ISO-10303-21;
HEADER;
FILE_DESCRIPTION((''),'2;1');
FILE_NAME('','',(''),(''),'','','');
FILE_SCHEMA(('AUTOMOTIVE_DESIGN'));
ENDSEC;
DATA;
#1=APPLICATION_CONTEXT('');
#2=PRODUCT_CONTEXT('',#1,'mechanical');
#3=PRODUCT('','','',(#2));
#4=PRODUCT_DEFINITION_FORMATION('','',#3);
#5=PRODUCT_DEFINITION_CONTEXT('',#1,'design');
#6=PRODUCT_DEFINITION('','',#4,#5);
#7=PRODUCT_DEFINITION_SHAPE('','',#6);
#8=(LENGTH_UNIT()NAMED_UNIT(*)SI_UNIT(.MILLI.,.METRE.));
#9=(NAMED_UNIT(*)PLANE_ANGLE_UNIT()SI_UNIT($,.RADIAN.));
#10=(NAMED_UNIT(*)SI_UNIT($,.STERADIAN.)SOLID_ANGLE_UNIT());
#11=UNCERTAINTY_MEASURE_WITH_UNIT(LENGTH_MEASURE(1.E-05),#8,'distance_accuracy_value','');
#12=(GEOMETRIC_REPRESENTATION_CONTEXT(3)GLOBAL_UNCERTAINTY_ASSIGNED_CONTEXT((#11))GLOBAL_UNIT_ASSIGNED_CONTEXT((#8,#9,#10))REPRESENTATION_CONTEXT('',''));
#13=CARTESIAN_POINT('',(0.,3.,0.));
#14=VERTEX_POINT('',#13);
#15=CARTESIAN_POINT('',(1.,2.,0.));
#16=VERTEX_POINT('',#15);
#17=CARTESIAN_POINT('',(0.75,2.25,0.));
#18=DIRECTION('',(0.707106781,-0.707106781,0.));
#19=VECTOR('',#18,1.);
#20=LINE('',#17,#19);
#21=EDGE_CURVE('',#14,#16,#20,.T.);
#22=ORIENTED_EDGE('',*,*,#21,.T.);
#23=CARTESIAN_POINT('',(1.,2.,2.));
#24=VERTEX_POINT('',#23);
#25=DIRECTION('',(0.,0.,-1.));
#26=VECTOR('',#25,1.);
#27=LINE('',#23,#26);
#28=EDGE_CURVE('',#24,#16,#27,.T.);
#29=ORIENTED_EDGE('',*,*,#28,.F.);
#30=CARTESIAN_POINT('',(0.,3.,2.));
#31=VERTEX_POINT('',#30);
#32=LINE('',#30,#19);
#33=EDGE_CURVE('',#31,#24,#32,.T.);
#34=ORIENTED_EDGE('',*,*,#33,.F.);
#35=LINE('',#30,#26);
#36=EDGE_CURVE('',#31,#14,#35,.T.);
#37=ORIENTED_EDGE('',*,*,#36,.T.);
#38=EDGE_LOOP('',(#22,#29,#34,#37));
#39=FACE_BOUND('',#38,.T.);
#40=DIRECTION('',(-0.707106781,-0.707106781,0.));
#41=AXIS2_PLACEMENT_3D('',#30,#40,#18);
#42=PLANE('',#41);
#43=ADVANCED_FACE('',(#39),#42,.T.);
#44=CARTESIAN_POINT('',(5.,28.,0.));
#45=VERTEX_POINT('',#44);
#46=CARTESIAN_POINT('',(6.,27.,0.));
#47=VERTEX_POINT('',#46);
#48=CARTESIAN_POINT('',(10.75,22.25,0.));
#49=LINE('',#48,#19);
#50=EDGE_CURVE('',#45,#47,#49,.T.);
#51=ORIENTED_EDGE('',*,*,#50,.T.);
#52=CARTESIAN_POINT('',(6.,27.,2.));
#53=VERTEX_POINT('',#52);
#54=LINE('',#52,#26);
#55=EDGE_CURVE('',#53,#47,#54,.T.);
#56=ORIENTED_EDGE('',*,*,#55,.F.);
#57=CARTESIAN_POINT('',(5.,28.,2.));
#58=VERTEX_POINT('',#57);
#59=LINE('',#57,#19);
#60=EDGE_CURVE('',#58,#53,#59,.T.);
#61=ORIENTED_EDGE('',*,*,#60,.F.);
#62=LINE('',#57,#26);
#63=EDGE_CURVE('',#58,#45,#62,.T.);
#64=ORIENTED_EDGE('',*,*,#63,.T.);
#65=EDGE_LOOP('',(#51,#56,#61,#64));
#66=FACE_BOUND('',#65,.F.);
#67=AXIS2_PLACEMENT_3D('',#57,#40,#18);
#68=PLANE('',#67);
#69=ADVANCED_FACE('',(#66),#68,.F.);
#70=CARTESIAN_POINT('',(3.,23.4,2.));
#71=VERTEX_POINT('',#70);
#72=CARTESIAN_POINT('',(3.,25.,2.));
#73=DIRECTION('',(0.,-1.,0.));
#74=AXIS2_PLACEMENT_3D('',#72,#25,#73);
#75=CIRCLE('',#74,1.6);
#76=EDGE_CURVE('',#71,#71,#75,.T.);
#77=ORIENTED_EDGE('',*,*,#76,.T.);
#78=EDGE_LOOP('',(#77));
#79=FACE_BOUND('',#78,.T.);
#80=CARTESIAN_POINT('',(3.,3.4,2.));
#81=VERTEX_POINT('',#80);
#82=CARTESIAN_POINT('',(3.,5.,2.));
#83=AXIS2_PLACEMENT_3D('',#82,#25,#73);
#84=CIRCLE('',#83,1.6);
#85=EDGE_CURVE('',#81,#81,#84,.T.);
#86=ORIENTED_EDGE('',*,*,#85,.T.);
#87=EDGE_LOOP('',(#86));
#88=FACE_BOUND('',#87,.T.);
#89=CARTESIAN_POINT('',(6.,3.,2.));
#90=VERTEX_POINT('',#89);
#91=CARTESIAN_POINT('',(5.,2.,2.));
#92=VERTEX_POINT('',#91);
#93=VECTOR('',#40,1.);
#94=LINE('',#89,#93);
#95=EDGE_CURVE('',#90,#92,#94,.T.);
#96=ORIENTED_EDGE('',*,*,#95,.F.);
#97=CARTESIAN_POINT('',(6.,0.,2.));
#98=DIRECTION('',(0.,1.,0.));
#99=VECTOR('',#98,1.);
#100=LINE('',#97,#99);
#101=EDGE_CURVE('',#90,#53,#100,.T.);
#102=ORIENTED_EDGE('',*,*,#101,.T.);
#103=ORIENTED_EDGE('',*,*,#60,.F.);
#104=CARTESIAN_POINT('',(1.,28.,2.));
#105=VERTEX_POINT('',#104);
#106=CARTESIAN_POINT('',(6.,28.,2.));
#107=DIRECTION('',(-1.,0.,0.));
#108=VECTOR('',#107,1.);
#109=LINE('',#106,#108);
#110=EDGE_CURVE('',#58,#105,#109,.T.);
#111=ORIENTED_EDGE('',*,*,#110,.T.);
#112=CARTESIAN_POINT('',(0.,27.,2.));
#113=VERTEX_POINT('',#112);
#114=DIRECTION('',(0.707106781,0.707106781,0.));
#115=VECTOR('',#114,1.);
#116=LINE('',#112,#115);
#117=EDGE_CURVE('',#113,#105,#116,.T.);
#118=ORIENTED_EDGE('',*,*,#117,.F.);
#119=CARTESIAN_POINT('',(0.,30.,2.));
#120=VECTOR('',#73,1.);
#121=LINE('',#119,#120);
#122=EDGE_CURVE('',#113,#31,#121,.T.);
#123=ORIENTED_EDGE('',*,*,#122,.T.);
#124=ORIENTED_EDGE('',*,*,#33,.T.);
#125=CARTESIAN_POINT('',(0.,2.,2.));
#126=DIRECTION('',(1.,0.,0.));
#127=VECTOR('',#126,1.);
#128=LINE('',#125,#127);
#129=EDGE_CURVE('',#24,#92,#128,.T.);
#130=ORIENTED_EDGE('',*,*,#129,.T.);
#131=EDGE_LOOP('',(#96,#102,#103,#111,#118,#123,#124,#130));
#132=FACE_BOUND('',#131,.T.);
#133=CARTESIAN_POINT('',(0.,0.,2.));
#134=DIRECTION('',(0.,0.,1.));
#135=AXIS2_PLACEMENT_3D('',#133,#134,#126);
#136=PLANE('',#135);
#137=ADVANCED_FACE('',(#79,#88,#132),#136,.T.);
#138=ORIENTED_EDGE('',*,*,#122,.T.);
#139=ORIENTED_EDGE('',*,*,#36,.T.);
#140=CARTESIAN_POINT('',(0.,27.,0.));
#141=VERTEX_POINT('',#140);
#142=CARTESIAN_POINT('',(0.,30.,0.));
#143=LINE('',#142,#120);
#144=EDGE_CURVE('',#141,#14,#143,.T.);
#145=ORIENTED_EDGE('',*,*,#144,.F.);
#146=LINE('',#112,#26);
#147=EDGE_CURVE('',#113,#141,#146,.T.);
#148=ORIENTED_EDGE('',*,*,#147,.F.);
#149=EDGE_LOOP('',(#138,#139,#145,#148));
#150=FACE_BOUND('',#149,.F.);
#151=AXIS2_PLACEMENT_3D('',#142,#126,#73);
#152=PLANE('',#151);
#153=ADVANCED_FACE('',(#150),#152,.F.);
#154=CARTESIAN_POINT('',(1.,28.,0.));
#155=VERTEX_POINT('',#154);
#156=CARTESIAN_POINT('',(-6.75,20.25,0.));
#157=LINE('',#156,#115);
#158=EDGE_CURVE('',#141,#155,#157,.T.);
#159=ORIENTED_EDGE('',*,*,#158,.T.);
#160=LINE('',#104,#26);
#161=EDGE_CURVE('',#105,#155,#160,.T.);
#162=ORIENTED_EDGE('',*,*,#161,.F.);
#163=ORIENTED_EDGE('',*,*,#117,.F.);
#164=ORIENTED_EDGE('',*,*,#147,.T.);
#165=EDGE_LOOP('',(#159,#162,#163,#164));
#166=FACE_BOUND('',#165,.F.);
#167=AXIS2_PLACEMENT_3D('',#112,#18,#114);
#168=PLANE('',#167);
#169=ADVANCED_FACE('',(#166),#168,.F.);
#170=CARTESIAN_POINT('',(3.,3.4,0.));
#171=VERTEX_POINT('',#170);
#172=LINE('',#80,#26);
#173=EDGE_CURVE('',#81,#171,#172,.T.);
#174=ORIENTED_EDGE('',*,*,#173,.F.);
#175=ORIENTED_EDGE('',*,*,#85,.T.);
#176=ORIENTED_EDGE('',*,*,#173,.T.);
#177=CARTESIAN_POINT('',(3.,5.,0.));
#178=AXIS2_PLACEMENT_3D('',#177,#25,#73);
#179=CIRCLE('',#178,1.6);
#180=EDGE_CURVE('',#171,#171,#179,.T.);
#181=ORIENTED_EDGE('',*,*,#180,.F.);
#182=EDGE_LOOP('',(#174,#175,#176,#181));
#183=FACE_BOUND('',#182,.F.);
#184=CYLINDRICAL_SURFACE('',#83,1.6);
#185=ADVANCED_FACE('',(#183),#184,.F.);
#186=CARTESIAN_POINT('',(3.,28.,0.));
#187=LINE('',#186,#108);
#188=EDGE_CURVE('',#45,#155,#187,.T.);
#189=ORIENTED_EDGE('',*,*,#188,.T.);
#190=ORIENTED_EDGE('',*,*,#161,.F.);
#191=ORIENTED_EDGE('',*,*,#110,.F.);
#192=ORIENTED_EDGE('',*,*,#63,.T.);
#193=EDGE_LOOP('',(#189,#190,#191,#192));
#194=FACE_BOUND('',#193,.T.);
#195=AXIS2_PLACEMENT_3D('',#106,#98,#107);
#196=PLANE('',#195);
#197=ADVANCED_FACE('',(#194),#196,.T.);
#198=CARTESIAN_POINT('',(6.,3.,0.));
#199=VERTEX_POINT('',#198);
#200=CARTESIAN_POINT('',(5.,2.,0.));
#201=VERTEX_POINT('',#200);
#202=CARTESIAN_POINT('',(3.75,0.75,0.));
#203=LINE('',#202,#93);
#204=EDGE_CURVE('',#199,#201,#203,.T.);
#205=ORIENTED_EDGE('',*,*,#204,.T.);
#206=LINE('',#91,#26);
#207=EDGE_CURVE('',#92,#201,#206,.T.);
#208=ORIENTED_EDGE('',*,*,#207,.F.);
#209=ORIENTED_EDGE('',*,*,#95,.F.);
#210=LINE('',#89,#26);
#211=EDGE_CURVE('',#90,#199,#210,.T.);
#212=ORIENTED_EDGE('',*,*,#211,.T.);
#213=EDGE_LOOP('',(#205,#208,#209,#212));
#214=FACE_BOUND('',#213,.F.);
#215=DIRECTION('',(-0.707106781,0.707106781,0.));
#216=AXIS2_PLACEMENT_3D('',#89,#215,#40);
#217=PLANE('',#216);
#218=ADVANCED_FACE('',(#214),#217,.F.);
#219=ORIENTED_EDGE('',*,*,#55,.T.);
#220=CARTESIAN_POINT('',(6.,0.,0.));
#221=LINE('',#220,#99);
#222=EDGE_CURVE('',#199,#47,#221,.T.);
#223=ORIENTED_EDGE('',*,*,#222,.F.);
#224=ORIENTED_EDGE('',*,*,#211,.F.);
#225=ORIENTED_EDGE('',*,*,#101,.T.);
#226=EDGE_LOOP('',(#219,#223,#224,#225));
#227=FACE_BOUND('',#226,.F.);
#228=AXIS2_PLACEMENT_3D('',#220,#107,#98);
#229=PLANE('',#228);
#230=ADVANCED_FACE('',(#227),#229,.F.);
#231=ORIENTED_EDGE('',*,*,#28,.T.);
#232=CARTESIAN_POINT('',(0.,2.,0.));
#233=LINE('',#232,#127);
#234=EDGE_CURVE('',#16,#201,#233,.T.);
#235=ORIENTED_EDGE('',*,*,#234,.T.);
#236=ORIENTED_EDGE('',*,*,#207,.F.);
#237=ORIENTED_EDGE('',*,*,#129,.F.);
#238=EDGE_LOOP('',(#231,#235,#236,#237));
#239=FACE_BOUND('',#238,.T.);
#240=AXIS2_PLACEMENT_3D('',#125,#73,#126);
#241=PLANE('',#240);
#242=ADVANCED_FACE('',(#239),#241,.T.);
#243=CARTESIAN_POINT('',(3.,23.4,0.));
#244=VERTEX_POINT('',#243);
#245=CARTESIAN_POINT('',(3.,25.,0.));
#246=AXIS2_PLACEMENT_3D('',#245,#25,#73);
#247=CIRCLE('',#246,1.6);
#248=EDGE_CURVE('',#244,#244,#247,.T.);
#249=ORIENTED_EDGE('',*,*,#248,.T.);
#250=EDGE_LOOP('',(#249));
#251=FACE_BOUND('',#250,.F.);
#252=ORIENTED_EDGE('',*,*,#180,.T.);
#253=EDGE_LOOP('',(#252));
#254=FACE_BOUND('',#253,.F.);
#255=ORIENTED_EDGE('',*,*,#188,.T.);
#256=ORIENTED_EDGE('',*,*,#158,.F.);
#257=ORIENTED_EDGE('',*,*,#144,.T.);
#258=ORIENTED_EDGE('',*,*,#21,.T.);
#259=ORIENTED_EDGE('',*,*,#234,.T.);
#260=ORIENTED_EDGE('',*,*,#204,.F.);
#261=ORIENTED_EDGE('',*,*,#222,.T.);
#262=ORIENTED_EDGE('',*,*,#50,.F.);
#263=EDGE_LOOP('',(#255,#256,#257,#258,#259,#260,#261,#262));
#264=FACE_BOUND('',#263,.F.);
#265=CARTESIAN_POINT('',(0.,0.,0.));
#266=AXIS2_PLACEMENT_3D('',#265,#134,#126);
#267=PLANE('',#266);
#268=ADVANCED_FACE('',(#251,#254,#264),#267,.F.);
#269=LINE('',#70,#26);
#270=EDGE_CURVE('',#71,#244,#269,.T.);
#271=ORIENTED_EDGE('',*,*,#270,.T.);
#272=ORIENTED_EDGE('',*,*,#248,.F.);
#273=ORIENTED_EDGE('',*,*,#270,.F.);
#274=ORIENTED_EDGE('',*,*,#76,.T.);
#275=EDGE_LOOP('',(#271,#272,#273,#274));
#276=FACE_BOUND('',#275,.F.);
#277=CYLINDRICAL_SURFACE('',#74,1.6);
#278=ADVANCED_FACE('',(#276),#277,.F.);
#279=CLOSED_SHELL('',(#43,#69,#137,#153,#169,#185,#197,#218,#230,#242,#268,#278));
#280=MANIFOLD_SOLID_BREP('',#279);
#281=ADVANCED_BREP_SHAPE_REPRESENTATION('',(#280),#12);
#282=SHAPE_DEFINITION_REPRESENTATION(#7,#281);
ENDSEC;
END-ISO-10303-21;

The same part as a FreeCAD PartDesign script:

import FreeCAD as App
import Part
import Sketcher

doc = App.newDocument("Part")
body = doc.addObject("PartDesign::Body", "Body")

# Sketch on XY plane
sketch1 = body.newObject("Sketcher::SketchObject", "Sketch")
sketch1.AttachmentSupport = (doc.getObject("XY_Plane"), [""])
sketch1.MapMode = "FlatFace"
sketch1.addGeometry([
    Part.LineSegment(App.Vector(0, 30, 0), App.Vector(0, 0, 0)),
    Part.LineSegment(App.Vector(0, 0, 0), App.Vector(6, 0, 0)),
    Part.LineSegment(App.Vector(6, 0, 0), App.Vector(6, 30, 0)),
    Part.LineSegment(App.Vector(6, 30, 0), App.Vector(0, 30, 0)),
], False)
sketch1.addConstraint([
    Sketcher.Constraint("Coincident", 0, 2, 1, 1),
    Sketcher.Constraint("Coincident", 1, 2, 2, 1),
    Sketcher.Constraint("Coincident", 2, 2, 3, 1),
    Sketcher.Constraint("Coincident", 3, 2, 0, 1),
    Sketcher.Constraint("Vertical", 0),
    Sketcher.Constraint("Horizontal", 1),
    Sketcher.Constraint("Vertical", 2),
    Sketcher.Constraint("Horizontal", 3),
    Sketcher.Constraint("Coincident", 0, 2, -1, 1),
    Sketcher.Constraint("DistanceX", 1, 1, 1, 2, 6.0),
    Sketcher.Constraint("DistanceY", 0, 2, 0, 1, 30.0),
])
pad1 = body.newObject("PartDesign::Pad", "Pad")
pad1.Profile = sketch1
pad1.Length = 2

# Sketch on XY plane
sketch2 = body.newObject("Sketcher::SketchObject", "Sketch001")
sketch2.AttachmentSupport = (doc.getObject("XY_Plane"), [""])
sketch2.MapMode = "FlatFace"
sketch2.AttachmentOffset = App.Placement(App.Vector(0, 0, 2), App.Rotation())
sketch2.addGeometry([
    Part.Circle(App.Vector(3, 25, 0), App.Vector(0, 0, 1), 1.6),
    Part.Circle(App.Vector(3, 5, 0), App.Vector(0, 0, 1), 1.6),
], False)
sketch2.addConstraint([
    Sketcher.Constraint("Equal", 0, 1),
    Sketcher.Constraint("Vertical", 0, 3, 1, 3),
    Sketcher.Constraint("Diameter", 0, 3.2),
    Sketcher.Constraint("DistanceX", -1, 1, 0, 3, 3.0),
    Sketcher.Constraint("DistanceY", -1, 1, 0, 3, 25.0),
    Sketcher.Constraint("DistanceY", -1, 1, 1, 3, 5.0),
])
doc.recompute()
hole = body.newObject("PartDesign::Hole", "Hole")
hole.Profile = sketch2
hole.ThreadType = "None"
hole.Diameter = 3.2
hole.DepthType = "ThroughAll"

# Sketch on XY plane
sketch3 = body.newObject("Sketcher::SketchObject", "Sketch002")
sketch3.AttachmentSupport = (doc.getObject("XY_Plane"), [""])
sketch3.MapMode = "FlatFace"
sketch3.AttachmentOffset = App.Placement(App.Vector(0, 0, 2), App.Rotation())
sketch3.addGeometry([
    Part.LineSegment(App.Vector(6, 28, 0), App.Vector(6, 30, 0)),  # 0
    Part.LineSegment(App.Vector(6, 30, 0), App.Vector(0, 30, 0)),  # 1
    Part.LineSegment(App.Vector(0, 30, 0), App.Vector(0, 28, 0)),  # 2
    Part.LineSegment(App.Vector(0, 28, 0), App.Vector(6, 28, 0)),  # 3
    Part.LineSegment(App.Vector(6, 0, 0), App.Vector(6, 2, 0)),  # 4
    Part.LineSegment(App.Vector(6, 2, 0), App.Vector(0, 2, 0)),  # 5
    Part.LineSegment(App.Vector(0, 2, 0), App.Vector(0, 0, 0)),  # 6
    Part.LineSegment(App.Vector(0, 0, 0), App.Vector(6, 0, 0)),  # 7
], False)
sketch3.addConstraint([
    Sketcher.Constraint("Coincident", 0, 2, 1, 1),
    Sketcher.Constraint("Coincident", 1, 2, 2, 1),
    Sketcher.Constraint("Coincident", 2, 2, 3, 1),
    Sketcher.Constraint("Coincident", 3, 2, 0, 1),
    Sketcher.Constraint("Coincident", 4, 2, 5, 1),
    Sketcher.Constraint("Coincident", 5, 2, 6, 1),
    Sketcher.Constraint("Coincident", 6, 2, 7, 1),
    Sketcher.Constraint("Coincident", 7, 2, 4, 1),
    Sketcher.Constraint("Vertical", 0),
    Sketcher.Constraint("Horizontal", 1),
    Sketcher.Constraint("Vertical", 2),
    Sketcher.Constraint("Horizontal", 3),
    Sketcher.Constraint("Vertical", 4),
    Sketcher.Constraint("Horizontal", 5),
    Sketcher.Constraint("Vertical", 6),
    Sketcher.Constraint("Horizontal", 7),
    Sketcher.Constraint("Coincident", 6, 2, -1, 1),
    Sketcher.Constraint("PointOnObject", 1, 2, -2),
    Sketcher.Constraint("Vertical", 3, 2, 4, 2),
    Sketcher.Constraint("Equal", 2, 4),
    Sketcher.Constraint("DistanceY", 0, 1, 0, 2, 2.0),
    Sketcher.Constraint("DistanceX", 1, 2, 1, 1, 6.0),
    Sketcher.Constraint("DistanceY", -1, 1, 0, 2, 30.0),
])
pocket1 = body.newObject("PartDesign::Pocket", "Pocket")
pocket1.Profile = sketch3
pocket1.Length = 10

# Sketch on XY plane
sketch4 = body.newObject("Sketcher::SketchObject", "Sketch003")
sketch4.AttachmentSupport = (doc.getObject("XY_Plane"), [""])
sketch4.MapMode = "FlatFace"
sketch4.AttachmentOffset = App.Placement(App.Vector(0, 0, 2), App.Rotation())
sketch4.addGeometry([
    Part.LineSegment(App.Vector(1, 2, 0), App.Vector(0, 3, 0)),  # 0
    Part.LineSegment(App.Vector(0, 3, 0), App.Vector(0, 2, 0)),  # 1
    Part.LineSegment(App.Vector(0, 2, 0), App.Vector(1, 2, 0)),  # 2
    Part.LineSegment(App.Vector(6, 3, 0), App.Vector(5, 2, 0)),  # 3
    Part.LineSegment(App.Vector(5, 2, 0), App.Vector(6, 2, 0)),  # 4
    Part.LineSegment(App.Vector(6, 2, 0), App.Vector(6, 3, 0)),  # 5
], False)
sketch4.addConstraint([
    Sketcher.Constraint("Coincident", 0, 2, 1, 1),
    Sketcher.Constraint("Coincident", 1, 2, 2, 1),
    Sketcher.Constraint("Coincident", 2, 2, 0, 1),
    Sketcher.Constraint("Coincident", 3, 2, 4, 1),
    Sketcher.Constraint("Coincident", 4, 2, 5, 1),
    Sketcher.Constraint("Coincident", 5, 2, 3, 1),
    Sketcher.Constraint("Vertical", 1),
    Sketcher.Constraint("Horizontal", 2),
    Sketcher.Constraint("Horizontal", 4),
    Sketcher.Constraint("Vertical", 5),
    Sketcher.Constraint("PointOnObject", 0, 2, -2),
    Sketcher.Constraint("Perpendicular", 0, 3),
    Sketcher.Constraint("Horizontal", 2, 2, 3, 2),
    Sketcher.Constraint("Horizontal", 0, 2, 5, 2),
    Sketcher.Constraint("Equal", 2, 4),
    Sketcher.Constraint("DistanceX", 2, 1, 2, 2, 1.0),
    Sketcher.Constraint("DistanceY", -1, 1, 0, 2, 3.0),
    Sketcher.Constraint("DistanceX", -1, 1, 3, 2, 5.0),
])
pocket2 = body.newObject("PartDesign::Pocket", "Pocket001")
pocket2.Profile = sketch4
pocket2.Length = 10

# Sketch on XY plane
sketch5 = body.newObject("Sketcher::SketchObject", "Sketch004")
sketch5.AttachmentSupport = (doc.getObject("XY_Plane"), [""])
sketch5.MapMode = "FlatFace"
sketch5.AttachmentOffset = App.Placement(App.Vector(0, 0, 2), App.Rotation())
sketch5.addGeometry([
    Part.LineSegment(App.Vector(1, 28, 0), App.Vector(0, 28, 0)),  # 0
    Part.LineSegment(App.Vector(0, 28, 0), App.Vector(0, 27, 0)),  # 1
    Part.LineSegment(App.Vector(0, 27, 0), App.Vector(1, 28, 0)),  # 2
    Part.LineSegment(App.Vector(6, 28, 0), App.Vector(5, 28, 0)),  # 3
    Part.LineSegment(App.Vector(5, 28, 0), App.Vector(6, 27, 0)),  # 4
    Part.LineSegment(App.Vector(6, 27, 0), App.Vector(6, 28, 0)),  # 5
], False)
sketch5.addConstraint([
    Sketcher.Constraint("Coincident", 0, 2, 1, 1),
    Sketcher.Constraint("Coincident", 1, 2, 2, 1),
    Sketcher.Constraint("Coincident", 2, 2, 0, 1),
    Sketcher.Constraint("Coincident", 3, 2, 4, 1),
    Sketcher.Constraint("Coincident", 4, 2, 5, 1),
    Sketcher.Constraint("Coincident", 5, 2, 3, 1),
    Sketcher.Constraint("Horizontal", 0),
    Sketcher.Constraint("Vertical", 1),
    Sketcher.Constraint("Horizontal", 3),
    Sketcher.Constraint("Vertical", 5),
    Sketcher.Constraint("PointOnObject", 0, 2, -2),
    Sketcher.Constraint("Perpendicular", 2, 4),
    Sketcher.Constraint("Horizontal", 2, 2, 3, 2),
    Sketcher.Constraint("Horizontal", 1, 2, 4, 2),
    Sketcher.Constraint("Equal", 0, 3),
    Sketcher.Constraint("DistanceX", 0, 2, 0, 1, 1.0),
    Sketcher.Constraint("DistanceY", -1, 1, 0, 2, 28.0),
    Sketcher.Constraint("DistanceX", -1, 1, 3, 2, 5.0),
])
pocket3 = body.newObject("PartDesign::Pocket", "Pocket002")
pocket3.Profile = sketch5
pocket3.Length = 10

doc.recompute()
